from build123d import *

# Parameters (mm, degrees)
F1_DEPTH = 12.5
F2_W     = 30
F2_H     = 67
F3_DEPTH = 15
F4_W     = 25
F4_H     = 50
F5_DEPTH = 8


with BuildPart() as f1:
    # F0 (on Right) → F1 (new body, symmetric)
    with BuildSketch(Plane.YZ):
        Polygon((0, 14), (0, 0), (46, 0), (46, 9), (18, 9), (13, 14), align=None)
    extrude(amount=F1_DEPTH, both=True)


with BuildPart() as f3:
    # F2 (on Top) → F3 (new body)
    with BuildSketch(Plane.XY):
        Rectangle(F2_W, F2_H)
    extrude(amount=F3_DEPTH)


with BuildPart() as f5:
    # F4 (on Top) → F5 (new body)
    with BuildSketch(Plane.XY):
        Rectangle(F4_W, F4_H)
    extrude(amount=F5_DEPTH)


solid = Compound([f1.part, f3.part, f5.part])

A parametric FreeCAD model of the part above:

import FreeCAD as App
import Part
import Sketcher

V = App.Vector
Q = App.Units.Quantity


def add_polygon(sketch, points):
    """Adds a closed chain of lines whose ends are joined by coincident constraints."""
    first, n = sketch.GeometryCount, len(points)
    for a, b in zip(points, points[1:] + points[:1]):
        sketch.addGeometry(Part.LineSegment(App.Vector(*a, 0), App.Vector(*b, 0)), False)
    for i in range(n):
        sketch.addConstraint(Sketcher.Constraint("Coincident", first + i, 2, first + (i + 1) % n, 1))

doc = App.newDocument("Part")
body = doc.addObject("PartDesign::Body", "Body")

sketch1 = body.newObject("Sketcher::SketchObject", "Sketch")
sketch1.AttachmentSupport = (doc.getObject("YZ_Plane"), [""])
sketch1.MapMode = "FlatFace"
add_polygon(sketch1, [(0, 14), (0, 0), (46, 0), (46, 9), (18, 9), (13, 14)])
sketch1.addConstraint([
    Sketcher.Constraint("Vertical", 0),
    Sketcher.Constraint("Horizontal", 1),
    Sketcher.Constraint("Vertical", 2),
    Sketcher.Constraint("Horizontal", 3),
    Sketcher.Constraint("Horizontal", 5),
    Sketcher.Constraint("Coincident", 0, 2, -1, 1),
    Sketcher.Constraint("DistanceX", 1, 1, 1, 2, Q("46 mm")),
    Sketcher.Constraint("DistanceX", 3, 2, 3, 1, Q("28 mm")),
    Sketcher.Constraint("DistanceX", 5, 2, 5, 1, Q("13 mm")),
    Sketcher.Constraint("DistanceY", 0, 2, 0, 1, Q("14 mm")),
    Sketcher.Constraint("DistanceY", 2, 1, 2, 2, Q("9 mm")),
])
pad1 = body.newObject("PartDesign::Pad", "Pad")
pad1.Profile = sketch1
pad1.Length = 25
pad1.Midplane = True
body2 = doc.addObject("PartDesign::Body", "Body001")

sketch2 = body2.newObject("Sketcher::SketchObject", "Sketch001")
sketch2.AttachmentSupport = (doc.getObject("XY_Plane001"), [""])
sketch2.MapMode = "FlatFace"
add_polygon(sketch2, [(-15, 34), (-15, -34), (15, -34), (15, 34)])
sketch2.addConstraint([
    Sketcher.Constraint("Vertical", 0),
    Sketcher.Constraint("Horizontal", 1),
    Sketcher.Constraint("Vertical", 2),
    Sketcher.Constraint("Horizontal", 3),
    Sketcher.Constraint("Symmetric", 0, 2, 2, 2, -1, 1),
    Sketcher.Constraint("DistanceX", 1, 1, 1, 2, Q("30 mm")),
    Sketcher.Constraint("DistanceY", 0, 2, 0, 1, Q("67 mm")),
])
pad2 = body2.newObject("PartDesign::Pad", "Pad001")
pad2.Profile = sketch2
pad2.Length = 15
body3 = doc.addObject("PartDesign::Body", "Body002")

sketch3 = body3.newObject("Sketcher::SketchObject", "Sketch002")
sketch3.AttachmentSupport = (doc.getObject("XY_Plane002"), [""])
sketch3.MapMode = "FlatFace"
add_polygon(sketch3, [(-12, 25), (-12, -25), (12, -25), (12, 25)])
sketch3.addConstraint([
    Sketcher.Constraint("Vertical", 0),
    Sketcher.Constraint("Horizontal", 1),
    Sketcher.Constraint("Vertical", 2),
    Sketcher.Constraint("Horizontal", 3),
    Sketcher.Constraint("Symmetric", 0, 2, 2, 2, -1, 1),
    Sketcher.Constraint("DistanceX", 1, 1, 1, 2, Q("25 mm")),
    Sketcher.Constraint("DistanceY", 0, 2, 0, 1, Q("50 mm")),
])
pad3 = body3.newObject("PartDesign::Pad", "Pad002")
pad3.Profile = sketch3
pad3.Length = 8

doc.recompute()
